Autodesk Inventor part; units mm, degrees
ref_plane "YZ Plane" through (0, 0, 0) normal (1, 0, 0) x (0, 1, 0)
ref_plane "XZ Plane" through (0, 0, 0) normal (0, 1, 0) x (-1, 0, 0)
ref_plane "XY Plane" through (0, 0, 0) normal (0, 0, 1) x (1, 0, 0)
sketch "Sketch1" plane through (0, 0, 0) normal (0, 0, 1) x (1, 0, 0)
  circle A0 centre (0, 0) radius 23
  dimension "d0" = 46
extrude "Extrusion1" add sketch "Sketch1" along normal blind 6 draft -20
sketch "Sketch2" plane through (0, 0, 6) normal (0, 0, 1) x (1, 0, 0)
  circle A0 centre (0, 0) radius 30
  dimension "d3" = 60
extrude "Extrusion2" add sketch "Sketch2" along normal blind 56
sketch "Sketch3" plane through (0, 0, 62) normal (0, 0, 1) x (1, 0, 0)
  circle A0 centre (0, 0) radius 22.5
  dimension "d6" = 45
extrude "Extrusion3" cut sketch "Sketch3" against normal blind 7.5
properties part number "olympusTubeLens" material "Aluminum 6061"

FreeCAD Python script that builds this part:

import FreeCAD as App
import Part
import Sketcher
from FreeCAD import Vector
Q = App.Units.Quantity

doc = App.newDocument("Part")
body = doc.addObject("PartDesign::Body", "Body")

# Sketch on XY plane
sketch1 = doc.addObject("Sketcher::SketchObject", "Sketch")
body.addObject(sketch1)
sketch1.AttachmentSupport = (doc.XY_Plane, [""])
sketch1.MapMode = "FlatFace"
sketch1.addGeometry(Part.Circle(Vector(0, 0, 0), Vector(0, 0, 1), 23), False)
sketch1.addConstraint(Sketcher.Constraint("Coincident", 0, 3, -1, 1))
sketch1.addConstraint(Sketcher.Constraint("Diameter", 0, Q("46 mm")))
pad1 = doc.addObject("PartDesign::Pad", "Pad")
body.addObject(pad1)
pad1.Profile = sketch1
pad1.Length = 6
pad1.TaperAngle = -20

# Sketch on XY plane
sketch2 = doc.addObject("Sketcher::SketchObject", "Sketch001")
body.addObject(sketch2)
sketch2.AttachmentSupport = (doc.XY_Plane, [""])
sketch2.MapMode = "FlatFace"
sketch2.AttachmentOffset = App.Placement(Vector(0, 0, 6), App.Rotation())
sketch2.addGeometry(Part.Circle(Vector(0, 0, 0), Vector(0, 0, 1), 30), False)
sketch2.addConstraint(Sketcher.Constraint("Coincident", 0, 3, -1, 1))
sketch2.addConstraint(Sketcher.Constraint("Diameter", 0, Q("60 mm")))
pad2 = doc.addObject("PartDesign::Pad", "Pad001")
body.addObject(pad2)
pad2.Profile = sketch2
pad2.Length = 56

# Sketch on XY plane
sketch3 = doc.addObject("Sketcher::SketchObject", "Sketch002")
body.addObject(sketch3)
sketch3.AttachmentSupport = (doc.XY_Plane, [""])
sketch3.MapMode = "FlatFace"
sketch3.AttachmentOffset = App.Placement(Vector(0, 0, 62), App.Rotation())
sketch3.addGeometry(Part.Circle(Vector(0, 0, 0), Vector(0, 0, 1), 22), False)
sketch3.addConstraint(Sketcher.Constraint("Coincident", 0, 3, -1, 1))
sketch3.addConstraint(Sketcher.Constraint("Diameter", 0, Q("45 mm")))
pocket1 = doc.addObject("PartDesign::Pocket", "Pocket")
body.addObject(pocket1)
pocket1.Profile = sketch3
pocket1.Length = 7.5

doc.recompute()
